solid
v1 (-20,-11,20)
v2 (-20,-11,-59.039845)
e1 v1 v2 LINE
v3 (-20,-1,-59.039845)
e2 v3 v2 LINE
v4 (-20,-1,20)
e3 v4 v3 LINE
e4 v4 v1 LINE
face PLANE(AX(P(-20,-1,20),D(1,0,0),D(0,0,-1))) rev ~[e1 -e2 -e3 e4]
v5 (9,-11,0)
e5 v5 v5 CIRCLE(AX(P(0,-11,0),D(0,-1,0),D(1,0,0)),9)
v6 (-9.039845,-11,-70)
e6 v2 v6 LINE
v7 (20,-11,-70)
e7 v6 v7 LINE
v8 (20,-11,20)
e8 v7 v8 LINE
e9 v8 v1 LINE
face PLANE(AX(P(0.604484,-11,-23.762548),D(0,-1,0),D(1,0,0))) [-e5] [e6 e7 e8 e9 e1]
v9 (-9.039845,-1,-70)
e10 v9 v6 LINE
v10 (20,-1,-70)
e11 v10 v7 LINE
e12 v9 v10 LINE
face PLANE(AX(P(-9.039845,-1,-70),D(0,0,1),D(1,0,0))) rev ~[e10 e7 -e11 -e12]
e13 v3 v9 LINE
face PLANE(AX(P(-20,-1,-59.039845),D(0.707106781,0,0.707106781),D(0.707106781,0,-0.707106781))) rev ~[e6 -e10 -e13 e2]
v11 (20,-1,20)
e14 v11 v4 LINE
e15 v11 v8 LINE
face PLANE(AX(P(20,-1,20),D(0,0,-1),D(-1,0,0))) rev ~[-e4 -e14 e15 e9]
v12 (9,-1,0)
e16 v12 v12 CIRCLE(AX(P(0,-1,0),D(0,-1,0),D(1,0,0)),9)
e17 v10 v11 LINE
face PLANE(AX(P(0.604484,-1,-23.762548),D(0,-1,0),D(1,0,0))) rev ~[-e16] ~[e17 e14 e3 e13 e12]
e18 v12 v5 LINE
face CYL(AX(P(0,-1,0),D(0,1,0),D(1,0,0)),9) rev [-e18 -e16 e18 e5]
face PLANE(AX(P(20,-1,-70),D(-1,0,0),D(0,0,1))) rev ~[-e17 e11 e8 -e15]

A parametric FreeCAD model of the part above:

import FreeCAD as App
import Part
import Sketcher

V = App.Vector
Q = App.Units.Quantity

doc = App.newDocument("Part")
body = doc.addObject("PartDesign::Body", "Body")

sketch1 = doc.addObject("Sketcher::SketchObject", "Sketch")
body.addObject(sketch1)
sketch1.AttachmentSupport = (doc.XZ_Plane, [""])
sketch1.MapMode = "FlatFace"
sketch1.AttachmentOffset = App.Placement(V(0, 0, 1), App.Rotation())
sketch1.addGeometry([
    Part.LineSegment(V(20, -70, 0), V(20, 20, 0)),
    Part.LineSegment(V(20, 20, 0), V(-20, 20, 0)),
    Part.LineSegment(V(-20, 20, 0), V(-20, -59, 0)),
    Part.LineSegment(V(-20, -59, 0), V(-9, -70, 0)),
    Part.LineSegment(V(-9, -70, 0), V(20, -70, 0)),
    Part.Circle(V(0, 0, 0), V(0, 0, 1), 9),
], False)
sketch1.addConstraint([
    Sketcher.Constraint("Coincident", 0, 2, 1, 1),
    Sketcher.Constraint("Coincident", 1, 2, 2, 1),
    Sketcher.Constraint("Coincident", 2, 2, 3, 1),
    Sketcher.Constraint("Coincident", 3, 2, 4, 1),
    Sketcher.Constraint("Coincident", 4, 2, 0, 1),
    Sketcher.Constraint("Vertical", 0),
    Sketcher.Constraint("Horizontal", 1),
    Sketcher.Constraint("Vertical", 2),
    Sketcher.Constraint("Horizontal", 4),
    Sketcher.Constraint("Coincident", 5, 3, -1, 1),
    Sketcher.Constraint("Diameter", 5, 18.0),
    Sketcher.Constraint("DistanceX", 1, 2, 1, 1, 40.0),
    Sketcher.Constraint("DistanceY", 0, 1, 0, 2, 90.0),
    Sketcher.Constraint("Angle", 3, Q("-45 deg")),
    Sketcher.Constraint("DistanceX", -1, 1, 0, 2, 20.0),
    Sketcher.Constraint("DistanceY", -1, 1, 0, 2, 20.0),
    Sketcher.Constraint("Distance", 3, 15.5),
])
pad1 = doc.addObject("PartDesign::Pad", "Pad")
body.addObject(pad1)
pad1.Profile = sketch1
pad1.Length = 10

doc.recompute()
